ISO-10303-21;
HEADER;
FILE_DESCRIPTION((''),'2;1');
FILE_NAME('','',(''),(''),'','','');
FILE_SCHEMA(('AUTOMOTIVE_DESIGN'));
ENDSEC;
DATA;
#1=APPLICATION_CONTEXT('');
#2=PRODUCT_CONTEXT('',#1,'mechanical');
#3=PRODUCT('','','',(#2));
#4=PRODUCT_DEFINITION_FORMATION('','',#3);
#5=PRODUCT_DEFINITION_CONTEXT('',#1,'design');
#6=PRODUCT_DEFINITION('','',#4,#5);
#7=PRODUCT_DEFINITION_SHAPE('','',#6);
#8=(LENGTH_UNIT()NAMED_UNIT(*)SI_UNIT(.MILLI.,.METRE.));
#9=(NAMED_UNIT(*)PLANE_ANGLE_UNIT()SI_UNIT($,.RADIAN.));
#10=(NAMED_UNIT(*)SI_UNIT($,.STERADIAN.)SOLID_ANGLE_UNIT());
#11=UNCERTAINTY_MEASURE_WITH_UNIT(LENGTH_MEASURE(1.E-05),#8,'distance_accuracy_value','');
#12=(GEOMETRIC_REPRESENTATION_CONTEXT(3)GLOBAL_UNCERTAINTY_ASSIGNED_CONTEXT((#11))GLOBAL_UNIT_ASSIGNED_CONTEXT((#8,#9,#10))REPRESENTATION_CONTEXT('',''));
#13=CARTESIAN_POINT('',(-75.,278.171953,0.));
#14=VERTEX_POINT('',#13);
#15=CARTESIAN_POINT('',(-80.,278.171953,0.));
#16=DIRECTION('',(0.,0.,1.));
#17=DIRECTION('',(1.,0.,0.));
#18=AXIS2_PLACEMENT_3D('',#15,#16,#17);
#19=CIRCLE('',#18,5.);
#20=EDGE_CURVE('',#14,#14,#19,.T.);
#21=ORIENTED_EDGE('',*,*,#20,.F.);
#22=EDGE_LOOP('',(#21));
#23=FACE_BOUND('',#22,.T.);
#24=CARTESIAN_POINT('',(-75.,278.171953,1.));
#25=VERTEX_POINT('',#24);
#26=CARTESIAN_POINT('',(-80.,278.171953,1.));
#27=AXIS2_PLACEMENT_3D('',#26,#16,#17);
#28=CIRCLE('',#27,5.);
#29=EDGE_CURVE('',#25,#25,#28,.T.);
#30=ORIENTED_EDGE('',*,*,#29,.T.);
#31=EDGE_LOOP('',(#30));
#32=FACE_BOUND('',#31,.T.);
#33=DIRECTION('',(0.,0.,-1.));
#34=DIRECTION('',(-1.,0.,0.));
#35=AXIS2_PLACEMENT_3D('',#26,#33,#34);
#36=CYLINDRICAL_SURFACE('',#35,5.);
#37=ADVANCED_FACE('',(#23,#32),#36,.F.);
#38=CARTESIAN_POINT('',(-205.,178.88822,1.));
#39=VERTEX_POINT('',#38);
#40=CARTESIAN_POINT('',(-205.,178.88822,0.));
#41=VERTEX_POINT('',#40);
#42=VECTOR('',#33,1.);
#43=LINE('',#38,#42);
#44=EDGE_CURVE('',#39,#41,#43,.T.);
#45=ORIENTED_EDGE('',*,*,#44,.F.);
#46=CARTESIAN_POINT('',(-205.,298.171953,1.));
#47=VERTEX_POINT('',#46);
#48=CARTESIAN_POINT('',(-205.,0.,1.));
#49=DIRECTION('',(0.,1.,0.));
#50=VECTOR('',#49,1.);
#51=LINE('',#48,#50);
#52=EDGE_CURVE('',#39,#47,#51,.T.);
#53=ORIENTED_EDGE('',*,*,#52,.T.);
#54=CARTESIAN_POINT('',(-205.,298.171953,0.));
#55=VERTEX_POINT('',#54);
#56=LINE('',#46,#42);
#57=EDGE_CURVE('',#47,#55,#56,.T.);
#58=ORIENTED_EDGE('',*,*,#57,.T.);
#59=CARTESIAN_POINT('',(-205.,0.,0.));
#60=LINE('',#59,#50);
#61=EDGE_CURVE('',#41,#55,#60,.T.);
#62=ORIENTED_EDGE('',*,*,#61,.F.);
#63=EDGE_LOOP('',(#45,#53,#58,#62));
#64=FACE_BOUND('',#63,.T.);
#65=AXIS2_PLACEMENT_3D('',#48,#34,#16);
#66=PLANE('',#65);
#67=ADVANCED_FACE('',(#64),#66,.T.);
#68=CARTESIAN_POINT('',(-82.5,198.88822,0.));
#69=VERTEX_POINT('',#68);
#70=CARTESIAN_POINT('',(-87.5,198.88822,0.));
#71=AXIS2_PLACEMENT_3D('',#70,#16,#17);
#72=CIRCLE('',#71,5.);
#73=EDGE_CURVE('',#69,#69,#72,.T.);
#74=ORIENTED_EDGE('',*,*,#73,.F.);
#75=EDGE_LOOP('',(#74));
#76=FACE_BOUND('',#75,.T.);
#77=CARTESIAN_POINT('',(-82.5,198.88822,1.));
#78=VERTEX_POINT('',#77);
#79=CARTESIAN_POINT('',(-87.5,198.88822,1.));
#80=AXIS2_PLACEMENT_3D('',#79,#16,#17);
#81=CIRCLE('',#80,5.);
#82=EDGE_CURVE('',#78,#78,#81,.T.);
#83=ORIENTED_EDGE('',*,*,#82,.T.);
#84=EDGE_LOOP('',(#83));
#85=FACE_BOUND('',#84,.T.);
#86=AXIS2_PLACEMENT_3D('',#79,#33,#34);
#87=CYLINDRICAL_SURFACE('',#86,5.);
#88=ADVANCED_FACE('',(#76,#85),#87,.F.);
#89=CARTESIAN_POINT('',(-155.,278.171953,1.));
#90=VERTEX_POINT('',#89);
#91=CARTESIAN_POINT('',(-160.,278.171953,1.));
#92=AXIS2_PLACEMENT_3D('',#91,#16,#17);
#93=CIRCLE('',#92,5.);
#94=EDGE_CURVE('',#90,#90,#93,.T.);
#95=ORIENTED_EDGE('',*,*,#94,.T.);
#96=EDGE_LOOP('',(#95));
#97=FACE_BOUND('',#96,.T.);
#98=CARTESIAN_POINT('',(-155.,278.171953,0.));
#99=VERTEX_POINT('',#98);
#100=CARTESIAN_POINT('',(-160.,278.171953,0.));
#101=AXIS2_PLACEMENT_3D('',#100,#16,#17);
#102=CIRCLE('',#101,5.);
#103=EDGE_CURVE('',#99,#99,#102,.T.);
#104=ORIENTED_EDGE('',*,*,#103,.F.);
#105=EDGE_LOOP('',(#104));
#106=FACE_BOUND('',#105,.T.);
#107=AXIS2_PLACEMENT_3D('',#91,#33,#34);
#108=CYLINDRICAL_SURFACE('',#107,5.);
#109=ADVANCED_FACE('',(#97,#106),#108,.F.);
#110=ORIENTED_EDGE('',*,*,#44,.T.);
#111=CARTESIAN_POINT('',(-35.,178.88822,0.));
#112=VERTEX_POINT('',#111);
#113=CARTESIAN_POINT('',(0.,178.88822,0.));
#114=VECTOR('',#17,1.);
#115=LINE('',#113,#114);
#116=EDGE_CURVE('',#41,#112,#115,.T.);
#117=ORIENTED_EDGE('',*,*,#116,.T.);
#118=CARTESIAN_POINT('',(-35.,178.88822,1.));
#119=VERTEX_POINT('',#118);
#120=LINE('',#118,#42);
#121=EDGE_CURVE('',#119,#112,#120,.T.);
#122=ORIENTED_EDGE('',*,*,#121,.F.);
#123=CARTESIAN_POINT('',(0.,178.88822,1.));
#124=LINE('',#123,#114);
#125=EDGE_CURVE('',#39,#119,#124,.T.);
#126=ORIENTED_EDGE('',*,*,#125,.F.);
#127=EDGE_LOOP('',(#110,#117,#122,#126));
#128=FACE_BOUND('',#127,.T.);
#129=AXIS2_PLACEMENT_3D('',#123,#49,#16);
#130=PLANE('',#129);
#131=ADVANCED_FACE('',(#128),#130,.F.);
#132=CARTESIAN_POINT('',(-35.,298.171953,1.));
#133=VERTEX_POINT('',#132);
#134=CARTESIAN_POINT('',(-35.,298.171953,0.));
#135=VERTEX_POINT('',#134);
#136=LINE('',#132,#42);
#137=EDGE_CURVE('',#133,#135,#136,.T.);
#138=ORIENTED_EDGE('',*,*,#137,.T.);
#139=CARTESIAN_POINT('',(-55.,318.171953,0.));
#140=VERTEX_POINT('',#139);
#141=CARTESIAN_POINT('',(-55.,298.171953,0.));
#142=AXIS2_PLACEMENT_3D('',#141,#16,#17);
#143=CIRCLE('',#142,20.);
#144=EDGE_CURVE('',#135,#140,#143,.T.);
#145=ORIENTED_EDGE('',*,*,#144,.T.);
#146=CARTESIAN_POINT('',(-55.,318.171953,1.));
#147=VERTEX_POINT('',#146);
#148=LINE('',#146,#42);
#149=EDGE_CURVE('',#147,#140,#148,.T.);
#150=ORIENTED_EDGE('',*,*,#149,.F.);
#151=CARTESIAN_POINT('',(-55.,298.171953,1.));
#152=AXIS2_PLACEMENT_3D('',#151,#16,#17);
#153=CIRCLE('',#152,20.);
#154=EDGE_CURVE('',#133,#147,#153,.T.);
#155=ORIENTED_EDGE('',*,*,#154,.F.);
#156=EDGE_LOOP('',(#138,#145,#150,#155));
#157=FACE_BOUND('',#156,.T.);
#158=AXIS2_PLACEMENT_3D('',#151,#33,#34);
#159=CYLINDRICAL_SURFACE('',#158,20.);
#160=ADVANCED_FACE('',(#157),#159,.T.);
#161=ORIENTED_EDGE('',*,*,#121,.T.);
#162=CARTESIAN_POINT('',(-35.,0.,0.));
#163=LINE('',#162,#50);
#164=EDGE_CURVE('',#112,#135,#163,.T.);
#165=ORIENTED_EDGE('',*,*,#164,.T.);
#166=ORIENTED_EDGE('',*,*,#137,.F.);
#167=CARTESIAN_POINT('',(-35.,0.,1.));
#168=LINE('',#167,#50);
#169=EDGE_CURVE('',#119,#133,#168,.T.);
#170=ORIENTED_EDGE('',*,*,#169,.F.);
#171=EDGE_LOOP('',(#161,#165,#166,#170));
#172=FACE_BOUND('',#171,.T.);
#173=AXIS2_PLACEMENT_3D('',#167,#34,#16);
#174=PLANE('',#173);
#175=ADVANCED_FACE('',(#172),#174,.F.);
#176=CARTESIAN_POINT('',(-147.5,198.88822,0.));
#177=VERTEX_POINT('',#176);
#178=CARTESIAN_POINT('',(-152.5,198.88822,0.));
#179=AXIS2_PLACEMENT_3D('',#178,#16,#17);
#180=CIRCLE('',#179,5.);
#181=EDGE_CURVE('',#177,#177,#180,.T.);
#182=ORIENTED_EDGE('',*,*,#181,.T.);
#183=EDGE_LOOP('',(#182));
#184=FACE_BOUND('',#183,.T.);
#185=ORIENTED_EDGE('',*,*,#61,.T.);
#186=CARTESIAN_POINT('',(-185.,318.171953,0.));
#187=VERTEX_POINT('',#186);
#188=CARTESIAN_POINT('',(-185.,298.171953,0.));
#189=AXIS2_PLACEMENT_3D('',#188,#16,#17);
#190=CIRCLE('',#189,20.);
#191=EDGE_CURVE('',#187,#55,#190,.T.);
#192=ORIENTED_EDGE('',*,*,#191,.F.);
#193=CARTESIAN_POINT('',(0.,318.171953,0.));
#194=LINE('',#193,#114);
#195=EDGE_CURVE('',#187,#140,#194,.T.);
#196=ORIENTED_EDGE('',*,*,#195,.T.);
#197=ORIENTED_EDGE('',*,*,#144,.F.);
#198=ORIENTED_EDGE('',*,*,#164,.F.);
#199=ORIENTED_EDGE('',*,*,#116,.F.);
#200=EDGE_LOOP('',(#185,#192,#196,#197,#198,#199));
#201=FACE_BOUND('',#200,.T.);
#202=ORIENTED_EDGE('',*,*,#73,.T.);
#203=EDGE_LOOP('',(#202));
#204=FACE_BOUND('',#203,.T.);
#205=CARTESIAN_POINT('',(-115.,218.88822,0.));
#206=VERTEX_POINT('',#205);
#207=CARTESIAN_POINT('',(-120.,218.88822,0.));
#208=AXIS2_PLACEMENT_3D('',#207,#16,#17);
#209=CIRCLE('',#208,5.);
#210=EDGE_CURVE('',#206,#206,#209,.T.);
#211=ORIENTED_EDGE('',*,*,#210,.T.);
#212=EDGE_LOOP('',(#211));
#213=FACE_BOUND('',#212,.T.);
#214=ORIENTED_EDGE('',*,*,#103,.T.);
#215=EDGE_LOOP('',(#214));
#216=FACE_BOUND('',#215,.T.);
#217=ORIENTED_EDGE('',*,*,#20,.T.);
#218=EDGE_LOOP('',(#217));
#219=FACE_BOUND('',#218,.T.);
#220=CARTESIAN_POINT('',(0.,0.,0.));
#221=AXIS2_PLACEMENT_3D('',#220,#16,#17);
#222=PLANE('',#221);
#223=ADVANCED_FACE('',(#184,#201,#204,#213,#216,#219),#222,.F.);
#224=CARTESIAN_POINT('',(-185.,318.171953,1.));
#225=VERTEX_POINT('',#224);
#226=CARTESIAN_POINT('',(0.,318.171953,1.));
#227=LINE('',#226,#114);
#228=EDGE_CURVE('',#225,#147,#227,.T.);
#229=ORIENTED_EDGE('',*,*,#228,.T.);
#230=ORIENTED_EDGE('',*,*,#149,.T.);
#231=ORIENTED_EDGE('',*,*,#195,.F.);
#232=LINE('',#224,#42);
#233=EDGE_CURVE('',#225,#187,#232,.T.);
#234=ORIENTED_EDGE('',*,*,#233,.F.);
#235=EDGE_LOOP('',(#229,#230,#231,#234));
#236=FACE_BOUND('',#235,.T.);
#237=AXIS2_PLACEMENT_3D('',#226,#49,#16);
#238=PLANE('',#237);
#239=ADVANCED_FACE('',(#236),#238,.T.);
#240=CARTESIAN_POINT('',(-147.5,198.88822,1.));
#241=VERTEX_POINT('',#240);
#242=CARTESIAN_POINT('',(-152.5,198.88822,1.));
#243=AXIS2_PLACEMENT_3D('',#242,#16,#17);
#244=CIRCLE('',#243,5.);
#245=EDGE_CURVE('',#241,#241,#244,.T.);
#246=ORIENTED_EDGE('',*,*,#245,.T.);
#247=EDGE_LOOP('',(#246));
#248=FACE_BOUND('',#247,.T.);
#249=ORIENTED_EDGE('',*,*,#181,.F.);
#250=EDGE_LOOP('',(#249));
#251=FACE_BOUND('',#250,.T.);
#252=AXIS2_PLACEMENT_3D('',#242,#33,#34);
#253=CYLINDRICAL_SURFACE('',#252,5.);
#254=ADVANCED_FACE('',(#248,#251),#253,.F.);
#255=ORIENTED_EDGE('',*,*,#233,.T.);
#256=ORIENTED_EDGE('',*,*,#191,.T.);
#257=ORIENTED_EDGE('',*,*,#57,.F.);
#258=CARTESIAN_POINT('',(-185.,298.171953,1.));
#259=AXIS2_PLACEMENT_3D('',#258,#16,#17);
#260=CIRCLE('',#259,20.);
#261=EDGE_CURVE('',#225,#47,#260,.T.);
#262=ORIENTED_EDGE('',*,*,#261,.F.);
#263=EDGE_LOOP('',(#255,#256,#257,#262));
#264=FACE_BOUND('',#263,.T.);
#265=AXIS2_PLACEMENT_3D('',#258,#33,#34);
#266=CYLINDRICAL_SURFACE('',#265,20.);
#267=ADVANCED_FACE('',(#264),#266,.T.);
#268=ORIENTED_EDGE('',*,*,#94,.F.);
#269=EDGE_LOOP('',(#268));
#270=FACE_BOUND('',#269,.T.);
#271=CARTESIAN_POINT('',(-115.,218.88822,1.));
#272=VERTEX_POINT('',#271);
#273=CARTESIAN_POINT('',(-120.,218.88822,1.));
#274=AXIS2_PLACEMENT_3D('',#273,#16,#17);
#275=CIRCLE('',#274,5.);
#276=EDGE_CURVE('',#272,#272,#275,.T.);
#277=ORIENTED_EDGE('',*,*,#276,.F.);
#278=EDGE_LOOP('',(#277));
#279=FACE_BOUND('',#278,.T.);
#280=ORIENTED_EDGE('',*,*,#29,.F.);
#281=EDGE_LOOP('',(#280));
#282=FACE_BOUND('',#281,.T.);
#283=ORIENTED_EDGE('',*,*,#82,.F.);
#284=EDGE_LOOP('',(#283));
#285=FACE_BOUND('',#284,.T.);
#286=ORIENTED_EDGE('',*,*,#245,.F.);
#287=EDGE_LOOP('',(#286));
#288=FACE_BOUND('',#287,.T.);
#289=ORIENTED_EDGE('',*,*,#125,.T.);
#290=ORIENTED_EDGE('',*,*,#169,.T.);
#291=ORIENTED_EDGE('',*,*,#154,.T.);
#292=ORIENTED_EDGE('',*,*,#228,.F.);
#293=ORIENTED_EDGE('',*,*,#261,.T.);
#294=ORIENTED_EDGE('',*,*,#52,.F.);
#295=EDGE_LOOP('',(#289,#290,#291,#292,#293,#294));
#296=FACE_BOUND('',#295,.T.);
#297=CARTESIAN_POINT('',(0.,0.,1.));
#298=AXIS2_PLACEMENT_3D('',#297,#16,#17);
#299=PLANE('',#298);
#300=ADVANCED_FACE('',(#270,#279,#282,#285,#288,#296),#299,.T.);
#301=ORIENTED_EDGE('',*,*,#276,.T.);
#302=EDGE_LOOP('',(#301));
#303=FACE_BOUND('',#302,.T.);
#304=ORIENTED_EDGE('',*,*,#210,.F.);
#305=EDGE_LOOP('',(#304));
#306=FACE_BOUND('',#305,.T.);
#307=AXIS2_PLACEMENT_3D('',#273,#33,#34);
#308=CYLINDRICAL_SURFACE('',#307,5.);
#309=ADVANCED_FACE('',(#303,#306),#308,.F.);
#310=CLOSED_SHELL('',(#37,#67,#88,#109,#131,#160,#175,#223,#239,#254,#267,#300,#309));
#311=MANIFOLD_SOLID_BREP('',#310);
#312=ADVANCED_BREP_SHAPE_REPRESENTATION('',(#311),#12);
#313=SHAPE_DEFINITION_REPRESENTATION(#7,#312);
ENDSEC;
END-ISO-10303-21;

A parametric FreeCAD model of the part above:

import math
import FreeCAD as App
import Part
import Sketcher

V = App.Vector
Q = App.Units.Quantity

doc = App.newDocument("Part")
body = doc.addObject("PartDesign::Body", "Body")

sketch1 = doc.addObject("Sketcher::SketchObject", "Sketch")
body.addObject(sketch1)
sketch1.AttachmentSupport = (doc.XY_Plane, [""])
sketch1.MapMode = "FlatFace"
sketch1.addGeometry([
    Part.ArcOfCircle(Part.Circle(V(-185, 298, 0), V(0, 0, 1), 20), math.radians(90), math.radians(180)),
    Part.LineSegment(V(-205, 298, 0), V(-205, 179, 0)),
    Part.LineSegment(V(-205, 179, 0), V(-35, 179, 0)),
    Part.LineSegment(V(-35, 179, 0), V(-35, 298, 0)),
    Part.ArcOfCircle(Part.Circle(V(-55, 298, 0), V(0, 0, 1), 20), math.radians(0), math.radians(90)),
    Part.LineSegment(V(-55, 318, 0), V(-185, 318, 0)),
    Part.Circle(V(-152, 199, 0), V(0, 0, 1), 5),
    Part.Circle(V(-88, 199, 0), V(0, 0, 1), 5),
    Part.Circle(V(-120, 219, 0), V(0, 0, 1), 5),
    Part.Circle(V(-160, 278, 0), V(0, 0, 1), 5),
    Part.Circle(V(-80, 278, 0), V(0, 0, 1), 5),
], False)
sketch1.addConstraint([
    Sketcher.Constraint("Tangent", 0, 2, 1, 1),
    Sketcher.Constraint("Coincident", 1, 2, 2, 1),
    Sketcher.Constraint("Coincident", 2, 2, 3, 1),
    Sketcher.Constraint("Tangent", 3, 2, 4, 1),
    Sketcher.Constraint("Tangent", 4, 2, 5, 1),
    Sketcher.Constraint("Tangent", 5, 2, 0, 1),
    Sketcher.Constraint("Vertical", 1),
    Sketcher.Constraint("Horizontal", 2),
    Sketcher.Constraint("Vertical", 3),
    Sketcher.Constraint("Horizontal", 5),
    Sketcher.Constraint("Equal", 0, 4),
    Sketcher.Constraint("Equal", 6, 7),
    Sketcher.Constraint("Equal", 7, 8),
    Sketcher.Constraint("Equal", 8, 9),
    Sketcher.Constraint("Equal", 9, 10),
    Sketcher.Constraint("Horizontal", 6, 3, 7, 3),
    Sketcher.Constraint("Horizontal", 9, 3, 10, 3),
    Sketcher.Constraint("Diameter", 6, Q("10 mm")),
    Sketcher.Constraint("Radius", 0, Q("20 mm")),
    Sketcher.Constraint("DistanceX", 2, 1, 2, 2, Q("170 mm")),
    Sketcher.Constraint("DistanceX", 0, 3, -1, 1, Q("185 mm")),
    Sketcher.Constraint("DistanceX", 8, 3, -1, 1, Q("120 mm")),
    Sketcher.Constraint("DistanceX", 9, 3, -1, 1, Q("160 mm")),
    Sketcher.Constraint("DistanceX", 10, 3, -1, 1, Q("80 mm")),
    Sketcher.Constraint("DistanceX", 6, 3, 7, 3, Q("65 mm")),
    Sketcher.Constraint("DistanceY", 6, 3, 8, 3, Q("20 mm")),
    Sketcher.Constraint("DistanceY", 9, 3, 0, 3, Q("20 mm")),
    Sketcher.Constraint("DistanceY", 1, 2, 6, 3, Q("20 mm")),
    Sketcher.Constraint("DistanceX", 6, 3, -1, 1, Q("152.5 mm")),
    Sketcher.Constraint("DistanceY", 1, 2, 1, 1, Q("119.283732 mm")),
    Sketcher.Constraint("DistanceY", -1, 1, 6, 3, Q("198.88822 mm")),
])
pad1 = doc.addObject("PartDesign::Pad", "Pad")
body.addObject(pad1)
pad1.Profile = sketch1
pad1.Length = 1

doc.recompute()
